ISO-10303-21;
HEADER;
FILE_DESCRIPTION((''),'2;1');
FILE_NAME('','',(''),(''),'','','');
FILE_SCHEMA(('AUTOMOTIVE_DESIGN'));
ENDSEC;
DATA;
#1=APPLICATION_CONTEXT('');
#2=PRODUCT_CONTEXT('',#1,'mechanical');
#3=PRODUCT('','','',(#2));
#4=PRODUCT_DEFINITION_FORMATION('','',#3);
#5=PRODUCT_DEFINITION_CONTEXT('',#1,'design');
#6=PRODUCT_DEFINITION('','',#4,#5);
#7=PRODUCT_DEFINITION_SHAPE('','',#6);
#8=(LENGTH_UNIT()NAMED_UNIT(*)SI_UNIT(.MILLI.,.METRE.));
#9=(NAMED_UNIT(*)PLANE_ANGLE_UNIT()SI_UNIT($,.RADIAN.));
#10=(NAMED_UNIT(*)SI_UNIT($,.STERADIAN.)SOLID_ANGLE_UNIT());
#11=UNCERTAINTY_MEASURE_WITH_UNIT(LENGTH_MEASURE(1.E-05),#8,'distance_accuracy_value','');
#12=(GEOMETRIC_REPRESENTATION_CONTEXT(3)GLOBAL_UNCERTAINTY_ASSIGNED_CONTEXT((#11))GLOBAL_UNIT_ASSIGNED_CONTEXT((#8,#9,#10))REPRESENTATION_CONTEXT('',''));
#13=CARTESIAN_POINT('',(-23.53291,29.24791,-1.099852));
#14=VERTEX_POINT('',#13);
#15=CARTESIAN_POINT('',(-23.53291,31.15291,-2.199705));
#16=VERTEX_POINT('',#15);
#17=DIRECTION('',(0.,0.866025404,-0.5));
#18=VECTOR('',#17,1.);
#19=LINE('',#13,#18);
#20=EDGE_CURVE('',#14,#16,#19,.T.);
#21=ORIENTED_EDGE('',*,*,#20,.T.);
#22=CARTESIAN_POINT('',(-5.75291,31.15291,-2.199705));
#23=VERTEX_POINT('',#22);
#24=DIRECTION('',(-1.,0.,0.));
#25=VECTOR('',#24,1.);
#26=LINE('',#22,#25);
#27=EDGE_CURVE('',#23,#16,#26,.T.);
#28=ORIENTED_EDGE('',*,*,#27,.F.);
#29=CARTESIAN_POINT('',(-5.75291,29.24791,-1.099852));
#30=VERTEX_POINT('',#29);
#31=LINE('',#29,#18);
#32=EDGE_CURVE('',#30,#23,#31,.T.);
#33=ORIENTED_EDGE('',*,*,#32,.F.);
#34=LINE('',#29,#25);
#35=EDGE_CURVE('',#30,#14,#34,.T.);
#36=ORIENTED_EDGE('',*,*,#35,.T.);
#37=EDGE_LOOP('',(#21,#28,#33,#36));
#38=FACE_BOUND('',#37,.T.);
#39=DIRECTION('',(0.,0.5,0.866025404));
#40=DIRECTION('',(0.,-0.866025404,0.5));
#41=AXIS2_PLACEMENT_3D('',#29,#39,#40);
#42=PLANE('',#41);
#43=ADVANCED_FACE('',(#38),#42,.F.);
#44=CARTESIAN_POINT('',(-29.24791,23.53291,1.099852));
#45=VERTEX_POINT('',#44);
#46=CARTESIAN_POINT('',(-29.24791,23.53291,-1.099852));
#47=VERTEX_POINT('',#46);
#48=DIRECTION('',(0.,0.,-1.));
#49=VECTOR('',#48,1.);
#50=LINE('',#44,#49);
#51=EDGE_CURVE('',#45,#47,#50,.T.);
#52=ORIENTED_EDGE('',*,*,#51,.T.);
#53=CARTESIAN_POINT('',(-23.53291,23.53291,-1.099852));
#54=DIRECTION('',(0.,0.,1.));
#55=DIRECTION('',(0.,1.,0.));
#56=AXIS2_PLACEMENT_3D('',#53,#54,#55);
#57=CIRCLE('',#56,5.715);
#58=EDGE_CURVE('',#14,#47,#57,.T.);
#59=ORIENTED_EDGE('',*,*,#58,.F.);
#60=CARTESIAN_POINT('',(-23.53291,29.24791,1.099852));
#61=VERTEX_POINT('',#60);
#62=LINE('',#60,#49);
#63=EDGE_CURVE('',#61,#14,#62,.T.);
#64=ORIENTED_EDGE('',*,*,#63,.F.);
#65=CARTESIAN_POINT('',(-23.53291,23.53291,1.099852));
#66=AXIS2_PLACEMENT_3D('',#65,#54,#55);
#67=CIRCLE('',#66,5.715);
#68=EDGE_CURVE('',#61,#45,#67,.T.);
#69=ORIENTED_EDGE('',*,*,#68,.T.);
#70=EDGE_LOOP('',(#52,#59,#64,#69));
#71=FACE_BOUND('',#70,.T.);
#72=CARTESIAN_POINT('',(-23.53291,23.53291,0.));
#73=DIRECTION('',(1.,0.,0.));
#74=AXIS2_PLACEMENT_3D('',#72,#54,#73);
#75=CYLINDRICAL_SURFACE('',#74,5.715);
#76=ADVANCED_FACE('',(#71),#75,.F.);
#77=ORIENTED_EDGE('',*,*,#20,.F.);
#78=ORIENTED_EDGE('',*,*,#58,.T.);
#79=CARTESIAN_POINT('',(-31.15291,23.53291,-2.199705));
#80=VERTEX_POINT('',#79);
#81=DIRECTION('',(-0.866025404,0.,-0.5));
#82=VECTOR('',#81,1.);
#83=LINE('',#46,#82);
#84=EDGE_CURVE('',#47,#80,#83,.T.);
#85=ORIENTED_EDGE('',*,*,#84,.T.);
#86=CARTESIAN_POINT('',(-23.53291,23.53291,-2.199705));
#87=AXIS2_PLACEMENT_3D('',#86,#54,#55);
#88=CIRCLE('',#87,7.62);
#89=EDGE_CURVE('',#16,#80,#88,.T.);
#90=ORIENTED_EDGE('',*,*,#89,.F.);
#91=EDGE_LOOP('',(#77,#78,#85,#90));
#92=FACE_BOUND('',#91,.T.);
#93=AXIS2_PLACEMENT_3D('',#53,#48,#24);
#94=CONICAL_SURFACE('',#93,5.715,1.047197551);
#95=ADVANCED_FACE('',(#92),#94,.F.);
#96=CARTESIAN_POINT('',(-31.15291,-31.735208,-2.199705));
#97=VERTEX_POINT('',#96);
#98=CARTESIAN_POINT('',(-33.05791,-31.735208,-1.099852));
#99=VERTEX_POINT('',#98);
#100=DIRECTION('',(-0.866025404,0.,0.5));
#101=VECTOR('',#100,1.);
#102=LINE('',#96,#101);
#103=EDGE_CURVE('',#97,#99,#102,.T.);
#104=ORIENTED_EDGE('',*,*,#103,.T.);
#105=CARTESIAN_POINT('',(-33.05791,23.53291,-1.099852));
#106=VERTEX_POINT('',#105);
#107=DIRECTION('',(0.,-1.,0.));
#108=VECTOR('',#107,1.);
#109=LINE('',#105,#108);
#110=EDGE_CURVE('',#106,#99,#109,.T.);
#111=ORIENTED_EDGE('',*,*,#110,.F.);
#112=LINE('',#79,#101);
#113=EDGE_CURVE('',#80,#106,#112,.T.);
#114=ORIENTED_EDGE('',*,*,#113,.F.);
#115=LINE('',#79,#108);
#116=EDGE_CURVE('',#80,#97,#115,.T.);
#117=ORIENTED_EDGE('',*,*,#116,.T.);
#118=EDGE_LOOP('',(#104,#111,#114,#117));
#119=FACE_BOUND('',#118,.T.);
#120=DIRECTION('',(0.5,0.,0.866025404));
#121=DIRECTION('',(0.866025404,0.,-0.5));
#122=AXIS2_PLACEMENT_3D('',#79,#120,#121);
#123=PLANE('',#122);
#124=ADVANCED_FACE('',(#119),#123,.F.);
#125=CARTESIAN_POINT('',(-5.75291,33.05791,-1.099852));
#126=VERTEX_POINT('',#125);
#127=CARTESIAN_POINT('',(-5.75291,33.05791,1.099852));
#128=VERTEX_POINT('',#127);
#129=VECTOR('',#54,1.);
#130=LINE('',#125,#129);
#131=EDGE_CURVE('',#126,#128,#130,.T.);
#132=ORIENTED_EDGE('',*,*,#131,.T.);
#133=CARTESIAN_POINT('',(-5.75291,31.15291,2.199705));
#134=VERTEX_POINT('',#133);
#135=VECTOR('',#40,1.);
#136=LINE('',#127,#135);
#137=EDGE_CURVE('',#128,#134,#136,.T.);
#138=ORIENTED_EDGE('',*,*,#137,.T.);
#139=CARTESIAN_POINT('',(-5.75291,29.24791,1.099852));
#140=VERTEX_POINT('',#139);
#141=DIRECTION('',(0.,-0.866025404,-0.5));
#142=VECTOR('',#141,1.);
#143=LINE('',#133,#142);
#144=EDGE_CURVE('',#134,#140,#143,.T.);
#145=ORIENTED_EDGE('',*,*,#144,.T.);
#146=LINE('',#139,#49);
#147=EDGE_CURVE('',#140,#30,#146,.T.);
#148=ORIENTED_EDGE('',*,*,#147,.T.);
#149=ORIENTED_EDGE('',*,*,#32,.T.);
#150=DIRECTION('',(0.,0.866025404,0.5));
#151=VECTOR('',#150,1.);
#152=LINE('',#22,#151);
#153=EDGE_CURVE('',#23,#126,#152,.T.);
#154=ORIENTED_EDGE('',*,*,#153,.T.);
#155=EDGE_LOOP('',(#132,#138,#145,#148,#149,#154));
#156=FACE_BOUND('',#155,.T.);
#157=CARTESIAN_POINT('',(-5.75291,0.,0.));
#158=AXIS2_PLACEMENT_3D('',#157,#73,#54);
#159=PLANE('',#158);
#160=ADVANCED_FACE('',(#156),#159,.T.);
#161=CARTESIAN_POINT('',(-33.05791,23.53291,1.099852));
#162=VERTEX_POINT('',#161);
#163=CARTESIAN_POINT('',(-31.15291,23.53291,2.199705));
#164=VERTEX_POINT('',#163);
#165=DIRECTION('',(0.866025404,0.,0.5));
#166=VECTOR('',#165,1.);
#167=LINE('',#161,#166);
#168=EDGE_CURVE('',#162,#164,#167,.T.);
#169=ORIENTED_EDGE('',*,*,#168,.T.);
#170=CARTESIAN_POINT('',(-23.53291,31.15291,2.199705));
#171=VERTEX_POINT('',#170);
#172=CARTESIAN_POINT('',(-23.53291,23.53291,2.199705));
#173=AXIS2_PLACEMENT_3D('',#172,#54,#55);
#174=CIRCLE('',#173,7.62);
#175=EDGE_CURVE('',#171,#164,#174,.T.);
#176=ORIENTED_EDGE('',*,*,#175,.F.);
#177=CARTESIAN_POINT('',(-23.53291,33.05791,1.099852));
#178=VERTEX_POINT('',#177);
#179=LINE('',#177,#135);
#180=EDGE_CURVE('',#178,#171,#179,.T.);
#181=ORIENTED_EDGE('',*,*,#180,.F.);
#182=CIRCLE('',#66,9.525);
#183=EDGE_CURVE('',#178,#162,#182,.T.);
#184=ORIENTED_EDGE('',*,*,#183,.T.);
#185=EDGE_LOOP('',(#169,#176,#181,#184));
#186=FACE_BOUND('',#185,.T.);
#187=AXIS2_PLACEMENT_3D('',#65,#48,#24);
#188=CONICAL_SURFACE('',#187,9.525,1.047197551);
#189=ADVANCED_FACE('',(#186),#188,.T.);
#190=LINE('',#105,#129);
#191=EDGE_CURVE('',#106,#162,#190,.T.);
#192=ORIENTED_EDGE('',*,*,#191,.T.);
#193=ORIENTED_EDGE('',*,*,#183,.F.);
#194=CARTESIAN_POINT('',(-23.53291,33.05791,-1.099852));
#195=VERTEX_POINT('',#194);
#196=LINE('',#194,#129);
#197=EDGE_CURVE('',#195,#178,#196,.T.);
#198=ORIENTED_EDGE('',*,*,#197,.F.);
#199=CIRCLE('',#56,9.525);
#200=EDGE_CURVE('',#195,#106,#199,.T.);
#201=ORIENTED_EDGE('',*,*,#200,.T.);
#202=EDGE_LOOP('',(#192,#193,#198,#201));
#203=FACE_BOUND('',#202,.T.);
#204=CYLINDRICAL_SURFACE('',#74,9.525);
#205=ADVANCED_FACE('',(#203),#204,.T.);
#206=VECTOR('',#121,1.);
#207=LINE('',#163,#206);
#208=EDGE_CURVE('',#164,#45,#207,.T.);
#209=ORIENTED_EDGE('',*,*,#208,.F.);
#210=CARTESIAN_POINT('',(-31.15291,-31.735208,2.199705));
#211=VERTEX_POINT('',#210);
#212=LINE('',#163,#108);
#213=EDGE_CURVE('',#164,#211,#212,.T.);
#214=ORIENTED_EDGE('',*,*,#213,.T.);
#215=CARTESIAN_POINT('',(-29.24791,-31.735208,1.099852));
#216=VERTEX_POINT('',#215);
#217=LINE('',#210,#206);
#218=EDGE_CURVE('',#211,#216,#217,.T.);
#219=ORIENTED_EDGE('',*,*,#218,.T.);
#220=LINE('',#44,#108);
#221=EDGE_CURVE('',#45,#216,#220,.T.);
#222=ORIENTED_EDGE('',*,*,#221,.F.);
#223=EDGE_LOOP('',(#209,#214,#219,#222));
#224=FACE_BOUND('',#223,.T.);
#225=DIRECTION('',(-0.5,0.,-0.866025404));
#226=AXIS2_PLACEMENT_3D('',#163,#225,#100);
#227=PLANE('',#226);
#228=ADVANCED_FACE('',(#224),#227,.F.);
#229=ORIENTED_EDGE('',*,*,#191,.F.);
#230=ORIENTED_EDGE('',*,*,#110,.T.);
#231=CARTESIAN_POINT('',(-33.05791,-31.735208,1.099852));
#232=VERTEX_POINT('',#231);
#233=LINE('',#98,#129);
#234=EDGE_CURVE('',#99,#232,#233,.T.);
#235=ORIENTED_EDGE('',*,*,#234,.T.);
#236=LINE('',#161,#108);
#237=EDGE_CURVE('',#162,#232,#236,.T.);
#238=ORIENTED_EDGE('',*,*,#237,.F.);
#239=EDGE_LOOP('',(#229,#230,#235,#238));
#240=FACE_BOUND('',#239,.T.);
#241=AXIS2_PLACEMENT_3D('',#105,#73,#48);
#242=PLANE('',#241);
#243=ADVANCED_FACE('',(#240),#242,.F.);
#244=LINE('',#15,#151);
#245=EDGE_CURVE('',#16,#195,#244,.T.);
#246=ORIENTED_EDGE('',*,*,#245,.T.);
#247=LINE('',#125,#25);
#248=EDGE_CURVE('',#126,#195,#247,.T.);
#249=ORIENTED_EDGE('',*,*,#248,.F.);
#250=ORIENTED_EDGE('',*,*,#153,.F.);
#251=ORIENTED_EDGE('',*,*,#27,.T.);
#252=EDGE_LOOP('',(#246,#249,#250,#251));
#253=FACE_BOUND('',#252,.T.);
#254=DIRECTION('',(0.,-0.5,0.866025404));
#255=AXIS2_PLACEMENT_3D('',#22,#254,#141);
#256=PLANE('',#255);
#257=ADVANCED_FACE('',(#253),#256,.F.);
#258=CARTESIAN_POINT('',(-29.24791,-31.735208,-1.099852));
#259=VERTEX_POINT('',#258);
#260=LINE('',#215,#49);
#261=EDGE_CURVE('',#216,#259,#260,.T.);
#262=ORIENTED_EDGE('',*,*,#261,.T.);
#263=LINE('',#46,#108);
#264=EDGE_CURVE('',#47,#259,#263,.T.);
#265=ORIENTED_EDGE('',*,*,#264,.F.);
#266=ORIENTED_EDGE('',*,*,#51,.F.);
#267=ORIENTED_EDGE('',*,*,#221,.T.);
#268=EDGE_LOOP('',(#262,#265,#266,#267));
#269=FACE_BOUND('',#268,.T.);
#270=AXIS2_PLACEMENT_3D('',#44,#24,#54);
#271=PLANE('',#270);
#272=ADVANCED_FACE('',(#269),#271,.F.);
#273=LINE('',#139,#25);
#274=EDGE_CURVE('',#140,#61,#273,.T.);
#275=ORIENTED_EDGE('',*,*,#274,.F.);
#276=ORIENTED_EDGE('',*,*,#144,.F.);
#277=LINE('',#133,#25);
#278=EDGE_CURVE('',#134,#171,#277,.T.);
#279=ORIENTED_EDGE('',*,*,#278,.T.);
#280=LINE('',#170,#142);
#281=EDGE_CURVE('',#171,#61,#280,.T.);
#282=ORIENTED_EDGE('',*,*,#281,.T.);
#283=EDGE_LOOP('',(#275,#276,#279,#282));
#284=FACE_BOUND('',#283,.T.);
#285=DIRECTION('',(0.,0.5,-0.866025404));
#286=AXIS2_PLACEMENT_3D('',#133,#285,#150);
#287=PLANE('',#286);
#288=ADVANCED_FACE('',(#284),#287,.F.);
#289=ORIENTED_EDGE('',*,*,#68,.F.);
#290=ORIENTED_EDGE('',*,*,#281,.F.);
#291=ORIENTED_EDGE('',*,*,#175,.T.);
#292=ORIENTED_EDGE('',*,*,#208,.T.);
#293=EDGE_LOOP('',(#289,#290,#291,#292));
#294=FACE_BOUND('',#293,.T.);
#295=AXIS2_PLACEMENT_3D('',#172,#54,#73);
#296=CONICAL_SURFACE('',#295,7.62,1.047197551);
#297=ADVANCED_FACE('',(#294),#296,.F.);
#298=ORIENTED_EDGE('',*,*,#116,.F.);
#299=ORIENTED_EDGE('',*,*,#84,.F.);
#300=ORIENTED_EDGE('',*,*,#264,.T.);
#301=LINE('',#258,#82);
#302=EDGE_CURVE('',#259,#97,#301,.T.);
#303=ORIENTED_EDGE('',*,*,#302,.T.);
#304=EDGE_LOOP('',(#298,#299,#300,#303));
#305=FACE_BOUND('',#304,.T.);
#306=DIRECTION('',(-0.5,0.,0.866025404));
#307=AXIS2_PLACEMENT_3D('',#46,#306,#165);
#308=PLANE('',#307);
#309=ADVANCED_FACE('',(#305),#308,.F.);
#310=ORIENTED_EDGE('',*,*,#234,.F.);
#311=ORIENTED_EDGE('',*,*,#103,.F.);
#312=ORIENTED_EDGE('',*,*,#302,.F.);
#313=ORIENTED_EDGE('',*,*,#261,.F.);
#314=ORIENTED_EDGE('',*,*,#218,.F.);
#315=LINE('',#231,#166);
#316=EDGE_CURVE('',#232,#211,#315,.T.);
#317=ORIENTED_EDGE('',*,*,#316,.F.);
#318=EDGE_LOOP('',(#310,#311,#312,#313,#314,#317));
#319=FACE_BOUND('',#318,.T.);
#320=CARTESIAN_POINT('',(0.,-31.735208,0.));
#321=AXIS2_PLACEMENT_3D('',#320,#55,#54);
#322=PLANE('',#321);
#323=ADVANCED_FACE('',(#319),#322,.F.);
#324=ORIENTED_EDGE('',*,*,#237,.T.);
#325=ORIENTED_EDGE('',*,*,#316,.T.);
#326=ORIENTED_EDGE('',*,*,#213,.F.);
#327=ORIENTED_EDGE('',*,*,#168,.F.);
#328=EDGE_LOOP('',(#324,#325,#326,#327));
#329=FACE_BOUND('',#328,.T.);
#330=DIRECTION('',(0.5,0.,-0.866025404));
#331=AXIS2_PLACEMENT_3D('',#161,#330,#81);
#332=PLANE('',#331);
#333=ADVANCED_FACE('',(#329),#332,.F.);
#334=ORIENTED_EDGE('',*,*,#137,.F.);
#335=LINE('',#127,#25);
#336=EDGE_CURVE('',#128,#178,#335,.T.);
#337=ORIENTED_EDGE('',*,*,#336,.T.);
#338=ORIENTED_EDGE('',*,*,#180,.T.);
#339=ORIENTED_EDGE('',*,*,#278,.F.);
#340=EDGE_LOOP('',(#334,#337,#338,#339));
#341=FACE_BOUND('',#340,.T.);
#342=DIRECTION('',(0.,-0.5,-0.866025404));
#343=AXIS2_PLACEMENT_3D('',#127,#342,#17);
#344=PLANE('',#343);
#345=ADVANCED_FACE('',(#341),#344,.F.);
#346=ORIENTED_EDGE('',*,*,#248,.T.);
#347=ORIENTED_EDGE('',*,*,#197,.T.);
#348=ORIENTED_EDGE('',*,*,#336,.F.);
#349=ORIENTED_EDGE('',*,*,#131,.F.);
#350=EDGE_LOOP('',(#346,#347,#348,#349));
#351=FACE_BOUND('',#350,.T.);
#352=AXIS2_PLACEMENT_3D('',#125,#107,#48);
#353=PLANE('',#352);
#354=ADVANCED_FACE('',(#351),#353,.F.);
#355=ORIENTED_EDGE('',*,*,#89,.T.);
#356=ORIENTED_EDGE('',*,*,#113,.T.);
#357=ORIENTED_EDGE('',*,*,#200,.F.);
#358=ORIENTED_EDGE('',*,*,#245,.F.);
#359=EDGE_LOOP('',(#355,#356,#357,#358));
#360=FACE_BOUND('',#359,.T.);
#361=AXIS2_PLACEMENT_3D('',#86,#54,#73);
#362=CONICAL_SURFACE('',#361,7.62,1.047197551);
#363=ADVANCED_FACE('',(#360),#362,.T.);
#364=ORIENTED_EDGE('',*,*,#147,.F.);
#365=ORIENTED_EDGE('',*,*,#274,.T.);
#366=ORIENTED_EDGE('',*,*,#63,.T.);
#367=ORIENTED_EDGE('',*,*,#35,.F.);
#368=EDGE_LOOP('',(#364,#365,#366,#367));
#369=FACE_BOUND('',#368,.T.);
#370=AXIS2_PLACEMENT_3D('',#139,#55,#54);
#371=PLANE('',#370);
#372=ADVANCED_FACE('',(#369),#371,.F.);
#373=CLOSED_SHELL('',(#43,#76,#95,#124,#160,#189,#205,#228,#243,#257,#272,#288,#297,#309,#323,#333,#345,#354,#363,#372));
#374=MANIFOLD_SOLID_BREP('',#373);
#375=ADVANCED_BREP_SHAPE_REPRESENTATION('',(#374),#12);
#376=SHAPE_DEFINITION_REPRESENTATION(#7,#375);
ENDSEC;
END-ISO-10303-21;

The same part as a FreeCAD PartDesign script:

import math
import FreeCAD as App
import Part
import Sketcher
from FreeCAD import Vector
Q = App.Units.Quantity

doc = App.newDocument("Part")
body = doc.addObject("PartDesign::Body", "Body")

sketch1 = body.newObject("Sketcher::SketchObject", "Sketch")
sketch1.AttachmentSupport = (doc.getObject("XZ_Plane"), [""])
sketch1.MapMode = "FlatFace"
sketch1.addGeometry([
    Part.LineSegment(Vector(-31.2, -2.2, 0), Vector(-33.1, -1.1, 0)),
    Part.LineSegment(Vector(-33.1, -1.1, 0), Vector(-33.1, 1.1, 0)),
    Part.LineSegment(Vector(-33.1, 1.1, 0), Vector(-31.2, 2.2, 0)),
    Part.LineSegment(Vector(-31.2, 2.2, 0), Vector(-29.2, 1.1, 0)),
    Part.LineSegment(Vector(-29.2, 1.1, 0), Vector(-29.2, -1.1, 0)),
    Part.LineSegment(Vector(-29.2, -1.1, 0), Vector(-31.2, -2.2, 0)),
], False)
sketch1.addConstraint([
    Sketcher.Constraint("Coincident", 0, 2, 1, 1),
    Sketcher.Constraint("Coincident", 1, 2, 2, 1),
    Sketcher.Constraint("Coincident", 2, 2, 3, 1),
    Sketcher.Constraint("Coincident", 3, 2, 4, 1),
    Sketcher.Constraint("Coincident", 4, 2, 5, 1),
    Sketcher.Constraint("Coincident", 5, 2, 0, 1),
    Sketcher.Constraint("Vertical", 1),
    Sketcher.Constraint("Vertical", 4),
    Sketcher.Constraint("Symmetric", 2, 2, 5, 2, -1),
    Sketcher.Constraint("Parallel", 0, 3),
    Sketcher.Constraint("Parallel", 2, 5),
    Sketcher.Constraint("Horizontal", 1, 2, 3, 2),
    Sketcher.Constraint("Horizontal", 0, 2, 4, 2),
    Sketcher.Constraint("Angle", 0, Q("150 deg")),
    Sketcher.Constraint("DistanceX", 1, 2, 3, 2, Q("0.15 in")),
    Sketcher.Constraint("DistanceY", 1, 1, 1, 2, Q("2.199705 mm")),
    Sketcher.Constraint("DistanceX", 0, 2, -1, 1, Q("33.05791 mm")),
])

sketch2 = body.newObject("Sketcher::SketchObject", "Sketch001")
sketch2.AttachmentSupport = (doc.getObject("XY_Plane"), [""])
sketch2.MapMode = "FlatFace"
sketch2.addGeometry([
    Part.LineSegment(Vector(-31, -32, 0), Vector(-31, 24, 0)),
    Part.ArcOfCircle(Part.Circle(Vector(-24, 24, 0), Vector(0, 0, 1), 8), math.radians(90), math.radians(180)),
    Part.LineSegment(Vector(-24, 31, 0), Vector(-6, 31, 0)),
], False)
sketch2.addConstraint([
    Sketcher.Constraint("Tangent", 0, 2, 1, 2),
    Sketcher.Constraint("Tangent", 1, 1, 2, 1),
    Sketcher.Constraint("Vertical", 0),
    Sketcher.Constraint("Horizontal", 2),
    Sketcher.Constraint("Radius", 1, Q("0.3 in")),
    Sketcher.Constraint("DistanceX", 2, 1, 2, 2, Q("0.7 in")),
    Sketcher.Constraint("DistanceY", 0, 1, 0, 2, Q("55.268118 mm")),
    Sketcher.Constraint("DistanceX", 1, 3, -1, 1, Q("23.53291 mm")),
    Sketcher.Constraint("DistanceY", -1, 1, 1, 3, Q("23.53291 mm")),
])
doc.recompute()

additivepipe = body.newObject("PartDesign::AdditivePipe", "AdditivePipe")
additivepipe.Profile = sketch1
additivepipe.Spine = (sketch2, ["Edge1", "Edge2", "Edge3"])

doc.recompute()
